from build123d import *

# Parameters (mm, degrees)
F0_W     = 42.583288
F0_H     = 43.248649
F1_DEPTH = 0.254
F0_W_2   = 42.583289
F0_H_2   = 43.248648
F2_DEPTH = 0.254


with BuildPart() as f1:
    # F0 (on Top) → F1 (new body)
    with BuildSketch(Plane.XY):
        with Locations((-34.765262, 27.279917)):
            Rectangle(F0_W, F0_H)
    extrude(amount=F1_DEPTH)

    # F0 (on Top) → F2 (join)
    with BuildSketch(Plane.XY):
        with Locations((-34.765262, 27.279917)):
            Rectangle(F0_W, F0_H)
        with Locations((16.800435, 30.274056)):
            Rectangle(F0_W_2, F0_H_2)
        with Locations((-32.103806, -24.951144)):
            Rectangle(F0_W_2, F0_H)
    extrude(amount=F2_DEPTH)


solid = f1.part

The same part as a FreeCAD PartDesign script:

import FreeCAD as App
import Part
import Sketcher
from FreeCAD import Vector
Q = App.Units.Quantity

doc = App.newDocument("Part")
body = doc.addObject("PartDesign::Body", "Body")
body.AllowCompound = True

sketch1 = doc.addObject("Sketcher::SketchObject", "Sketch")
body.addObject(sketch1)
sketch1.AttachmentSupport = (doc.XY_Plane, [""])
sketch1.MapMode = "FlatFace"
sketch1.addGeometry([
    Part.LineSegment(Vector(-56.056906, 48.904241, 0), Vector(-56.056906, 5.655593, 0)),
    Part.LineSegment(Vector(-56.056906, 5.655593, 0), Vector(-13.473618, 5.655593, 0)),
    Part.LineSegment(Vector(-13.473618, 5.655593, 0), Vector(-13.473618, 48.904241, 0)),
    Part.LineSegment(Vector(-13.473618, 48.904241, 0), Vector(-56.056906, 48.904241, 0)),
], False)
sketch1.addConstraint([
    Sketcher.Constraint("Coincident", 0, 2, 1, 1),
    Sketcher.Constraint("Coincident", 1, 2, 2, 1),
    Sketcher.Constraint("Coincident", 2, 2, 3, 1),
    Sketcher.Constraint("Coincident", 3, 2, 0, 1),
    Sketcher.Constraint("Vertical", 0),
    Sketcher.Constraint("Horizontal", 1),
    Sketcher.Constraint("Vertical", 2),
    Sketcher.Constraint("Horizontal", 3),
    Sketcher.Constraint("DistanceY", 0, 2, 0, 1, 43.248649),
    Sketcher.Constraint("DistanceX", 1, 1, 1, 2, 42.583288),
    Sketcher.Constraint("DistanceY", -1, 1, 2, 2, 48.904241),
    Sketcher.Constraint("DistanceX", 0, 2, -1, 1, 56.056906),
])
pad1 = doc.addObject("PartDesign::Pad", "Pad")
body.addObject(pad1)
pad1.Profile = sketch1
pad1.Length = Q("0.01 in")

sketch2 = doc.addObject("Sketcher::SketchObject", "Sketch001")
body.addObject(sketch2)
sketch2.AttachmentSupport = (doc.XY_Plane, [""])
sketch2.MapMode = "FlatFace"
sketch2.addGeometry([
    Part.LineSegment(Vector(-56.056906, 48.904241, 0), Vector(-56.056906, 5.655593, 0)),
    Part.LineSegment(Vector(-56.056906, 5.655593, 0), Vector(-13.473618, 5.655593, 0)),
    Part.LineSegment(Vector(-13.473618, 5.655593, 0), Vector(-13.473618, 48.904241, 0)),
    Part.LineSegment(Vector(-13.473618, 48.904241, 0), Vector(-56.056906, 48.904241, 0)),
    Part.LineSegment(Vector(-4.49121, 51.89838, 0), Vector(-4.49121, 8.649732, 0)),
    Part.LineSegment(Vector(-4.49121, 8.649732, 0), Vector(38.092079, 8.649732, 0)),
    Part.LineSegment(Vector(38.092079, 8.649732, 0), Vector(38.092079, 51.89838, 0)),
    Part.LineSegment(Vector(38.092079, 51.89838, 0), Vector(-4.49121, 51.89838, 0)),
    Part.LineSegment(Vector(-53.395451, -3.32682, 0), Vector(-53.395451, -46.575468, 0)),
    Part.LineSegment(Vector(-53.395451, -46.575468, 0), Vector(-10.812162, -46.575468, 0)),
    Part.LineSegment(Vector(-10.812162, -46.575468, 0), Vector(-10.812162, -3.32682, 0)),
    Part.LineSegment(Vector(-10.812162, -3.32682, 0), Vector(-53.395451, -3.32682, 0)),
], False)
sketch2.addConstraint([
    Sketcher.Constraint("Coincident", 0, 2, 1, 1),
    Sketcher.Constraint("Coincident", 1, 2, 2, 1),
    Sketcher.Constraint("Coincident", 2, 2, 3, 1),
    Sketcher.Constraint("Coincident", 3, 2, 0, 1),
    Sketcher.Constraint("Coincident", 4, 2, 5, 1),
    Sketcher.Constraint("Coincident", 5, 2, 6, 1),
    Sketcher.Constraint("Coincident", 6, 2, 7, 1),
    Sketcher.Constraint("Coincident", 7, 2, 4, 1),
    Sketcher.Constraint("Coincident", 8, 2, 9, 1),
    Sketcher.Constraint("Coincident", 9, 2, 10, 1),
    Sketcher.Constraint("Coincident", 10, 2, 11, 1),
    Sketcher.Constraint("Coincident", 11, 2, 8, 1),
    Sketcher.Constraint("Vertical", 0),
    Sketcher.Constraint("Horizontal", 1),
    Sketcher.Constraint("Vertical", 2),
    Sketcher.Constraint("Horizontal", 3),
    Sketcher.Constraint("Vertical", 4),
    Sketcher.Constraint("Horizontal", 5),
    Sketcher.Constraint("Vertical", 6),
    Sketcher.Constraint("Horizontal", 7),
    Sketcher.Constraint("Vertical", 8),
    Sketcher.Constraint("Horizontal", 9),
    Sketcher.Constraint("Vertical", 10),
    Sketcher.Constraint("Horizontal", 11),
    Sketcher.Constraint("Equal", 3, 5),
    Sketcher.Constraint("Equal", 7, 9),
    Sketcher.Constraint("Equal", 2, 4),
    Sketcher.Constraint("Equal", 6, 8),
    Sketcher.Constraint("DistanceX", 5, 1, 5, 2, 42.583289),
    Sketcher.Constraint("DistanceY", 0, 2, 0, 1, 43.248649),
    Sketcher.Constraint("DistanceY", 8, 2, 4, 2, 55.2252),
    Sketcher.Constraint("DistanceY", -1, 1, 2, 2, 48.904241),
    Sketcher.Constraint("DistanceX", 4, 2, -1, 1, 4.49121),
    Sketcher.Constraint("DistanceY", -1, 1, 6, 2, 51.89838),
    Sketcher.Constraint("DistanceX", 8, 2, -1, 1, 53.395451),
    Sketcher.Constraint("DistanceX", 1, 2, 4, 2, 8.982409),
])
pad2 = doc.addObject("PartDesign::Pad", "Pad001")
body.addObject(pad2)
pad2.Profile = sketch2
pad2.Length = Q("0.01 in")

doc.recompute()
